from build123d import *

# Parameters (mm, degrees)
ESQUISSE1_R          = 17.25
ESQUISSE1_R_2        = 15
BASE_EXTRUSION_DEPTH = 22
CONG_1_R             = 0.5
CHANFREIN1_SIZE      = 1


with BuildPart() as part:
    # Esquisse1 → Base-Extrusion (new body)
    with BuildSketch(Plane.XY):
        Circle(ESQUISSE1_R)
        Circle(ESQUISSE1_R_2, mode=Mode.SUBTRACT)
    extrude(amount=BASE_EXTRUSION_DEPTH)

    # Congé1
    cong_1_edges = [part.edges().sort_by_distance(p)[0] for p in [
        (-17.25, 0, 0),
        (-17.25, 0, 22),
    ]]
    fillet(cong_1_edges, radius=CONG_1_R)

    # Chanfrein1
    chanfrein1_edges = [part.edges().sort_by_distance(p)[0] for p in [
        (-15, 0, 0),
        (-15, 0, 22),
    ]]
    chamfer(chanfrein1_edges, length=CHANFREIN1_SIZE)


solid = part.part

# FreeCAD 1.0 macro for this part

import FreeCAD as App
import Part
import Sketcher


def edges_at(feature, points):
    """Names of the edges that pass closest to the given points."""
    edges = feature.Shape.Edges
    near = lambda p: min(range(len(edges)), key=lambda i: edges[i].distToShape(Part.Vertex(*p))[0])
    return sorted({f"Edge{near(p) + 1}" for p in points})

doc = App.newDocument("Part")
body = doc.addObject("PartDesign::Body", "Body")

# Sketch on XY plane
sketch1 = body.newObject("Sketcher::SketchObject", "Sketch")
sketch1.AttachmentSupport = (doc.getObject("XY_Plane"), [""])
sketch1.MapMode = "FlatFace"
sketch1.addGeometry(Part.Circle(App.Vector(0, 0, 0), App.Vector(0, 0, 1), 17), False)
sketch1.addGeometry(Part.Circle(App.Vector(0, 0, 0), App.Vector(0, 0, 1), 15), False)
sketch1.addConstraint(Sketcher.Constraint("Coincident", 0, 3, -1, 1))
sketch1.addConstraint(Sketcher.Constraint("Coincident", 1, 3, -1, 1))
sketch1.addConstraint(Sketcher.Constraint("Diameter", 1, 30.0))
sketch1.addConstraint(Sketcher.Constraint("Diameter", 0, 34.5))
pad1 = body.newObject("PartDesign::Pad", "Pad")
pad1.Profile = sketch1
pad1.Length = 22
doc.recompute()

fillet = body.newObject("PartDesign::Fillet", "Fillet")
fillet.Base = (pad1, edges_at(pad1, [(-17.25, 0, 0), (-17.25, 0, 22)]))
fillet.Radius = 0.5
doc.recompute()

chamfer = body.newObject("PartDesign::Chamfer", "Chamfer")
chamfer.Base = (fillet, edges_at(fillet, [(-15, 0, 0), (-15, 0, 22)]))
chamfer.Size = 1

doc.recompute()
